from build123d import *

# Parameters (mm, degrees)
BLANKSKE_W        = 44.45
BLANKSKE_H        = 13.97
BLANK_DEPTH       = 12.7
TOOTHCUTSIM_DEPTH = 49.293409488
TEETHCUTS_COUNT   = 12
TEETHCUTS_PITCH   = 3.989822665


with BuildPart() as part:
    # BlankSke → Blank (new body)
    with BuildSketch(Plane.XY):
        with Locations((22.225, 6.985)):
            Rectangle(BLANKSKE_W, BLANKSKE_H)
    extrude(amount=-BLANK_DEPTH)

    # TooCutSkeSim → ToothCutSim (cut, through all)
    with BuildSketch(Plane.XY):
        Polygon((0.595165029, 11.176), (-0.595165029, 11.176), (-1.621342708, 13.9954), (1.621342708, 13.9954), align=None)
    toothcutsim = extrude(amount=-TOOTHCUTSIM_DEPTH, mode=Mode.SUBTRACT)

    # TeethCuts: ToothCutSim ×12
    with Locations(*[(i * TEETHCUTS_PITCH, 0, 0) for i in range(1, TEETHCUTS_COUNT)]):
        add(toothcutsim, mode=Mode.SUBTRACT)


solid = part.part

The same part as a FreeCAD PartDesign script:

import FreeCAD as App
import Part
import Sketcher

V = App.Vector
Q = App.Units.Quantity

doc = App.newDocument("Part")
body = doc.addObject("PartDesign::Body", "Body")

# Sketch on XY plane
sketch1 = doc.addObject("Sketcher::SketchObject", "Sketch")
body.addObject(sketch1)
sketch1.AttachmentSupport = (doc.XY_Plane, [""])
sketch1.MapMode = "FlatFace"
sketch1.addGeometry(Part.LineSegment(V(0, 14, 0), V(0, 0, 0)), False)
sketch1.addGeometry(Part.LineSegment(V(0, 0, 0), V(44, 0, 0)), False)
sketch1.addGeometry(Part.LineSegment(V(44, 0, 0), V(44, 14, 0)), False)
sketch1.addGeometry(Part.LineSegment(V(44, 14, 0), V(0, 14, 0)), False)
sketch1.addConstraint(Sketcher.Constraint("Coincident", 0, 2, 1, 1))
sketch1.addConstraint(Sketcher.Constraint("Coincident", 1, 2, 2, 1))
sketch1.addConstraint(Sketcher.Constraint("Coincident", 2, 2, 3, 1))
sketch1.addConstraint(Sketcher.Constraint("Coincident", 3, 2, 0, 1))
sketch1.addConstraint(Sketcher.Constraint("Vertical", 0))
sketch1.addConstraint(Sketcher.Constraint("Horizontal", 1))
sketch1.addConstraint(Sketcher.Constraint("Vertical", 2))
sketch1.addConstraint(Sketcher.Constraint("Horizontal", 3))
sketch1.addConstraint(Sketcher.Constraint("Coincident", 0, 2, -1, 1))
sketch1.addConstraint(Sketcher.Constraint("DistanceX", 1, 1, 1, 2, Q("1.75 in")))
sketch1.addConstraint(Sketcher.Constraint("DistanceY", 0, 2, 0, 1, Q("0.55 in")))
pad1 = doc.addObject("PartDesign::Pad", "Pad")
body.addObject(pad1)
pad1.Profile = sketch1
pad1.Length = Q("0.5 in")
pad1.Reversed = True

# Sketch on XY plane
sketch2 = doc.addObject("Sketcher::SketchObject", "Sketch001")
body.addObject(sketch2)
sketch2.AttachmentSupport = (doc.XY_Plane, [""])
sketch2.MapMode = "FlatFace"
sketch2.addGeometry(Part.LineSegment(V(-0.6, 11.2, 0), V(0.6, 11.2, 0)), False)
sketch2.addGeometry(Part.LineSegment(V(0.6, 11.2, 0), V(1.6, 14, 0)), False)
sketch2.addGeometry(Part.LineSegment(V(1.6, 14, 0), V(-1.6, 14, 0)), False)
sketch2.addGeometry(Part.LineSegment(V(-1.6, 14, 0), V(-0.6, 11.2, 0)), False)
sketch2.addConstraint(Sketcher.Constraint("Coincident", 0, 2, 1, 1))
sketch2.addConstraint(Sketcher.Constraint("Coincident", 1, 2, 2, 1))
sketch2.addConstraint(Sketcher.Constraint("Coincident", 2, 2, 3, 1))
sketch2.addConstraint(Sketcher.Constraint("Coincident", 3, 2, 0, 1))
sketch2.addConstraint(Sketcher.Constraint("Horizontal", 0))
sketch2.addConstraint(Sketcher.Constraint("Horizontal", 2))
sketch2.addConstraint(Sketcher.Constraint("Equal", 1, 3))
sketch2.addConstraint(Sketcher.Constraint("Angle", 1, Q("70 deg")))
sketch2.addConstraint(Sketcher.Constraint("DistanceY", -1, 1, 0, 2, Q("0.44 in")))
sketch2.addConstraint(Sketcher.Constraint("DistanceY", -1, 1, 1, 2, Q("0.551 in")))
sketch2.addConstraint(Sketcher.Constraint("DistanceX", 0, 1, 0, 2, 1.19033))
sketch2.addConstraint(Sketcher.Constraint("DistanceX", -1, 1, 0, 2, 0.595165))
pocket1 = doc.addObject("PartDesign::Pocket", "Pocket")
body.addObject(pocket1)
pocket1.Profile = sketch2
pocket1.Type = "ThroughAll"
doc.recompute()

linearpattern = doc.addObject("PartDesign::LinearPattern", "LinearPattern")
body.addObject(linearpattern)
linearpattern.Originals = [pocket1]
linearpattern.Direction = (doc.X_Axis, [""])
linearpattern.Mode = "offset"
linearpattern.Offset = 3.989823
linearpattern.Occurrences = 12
body.Tip = linearpattern

doc.recompute()
